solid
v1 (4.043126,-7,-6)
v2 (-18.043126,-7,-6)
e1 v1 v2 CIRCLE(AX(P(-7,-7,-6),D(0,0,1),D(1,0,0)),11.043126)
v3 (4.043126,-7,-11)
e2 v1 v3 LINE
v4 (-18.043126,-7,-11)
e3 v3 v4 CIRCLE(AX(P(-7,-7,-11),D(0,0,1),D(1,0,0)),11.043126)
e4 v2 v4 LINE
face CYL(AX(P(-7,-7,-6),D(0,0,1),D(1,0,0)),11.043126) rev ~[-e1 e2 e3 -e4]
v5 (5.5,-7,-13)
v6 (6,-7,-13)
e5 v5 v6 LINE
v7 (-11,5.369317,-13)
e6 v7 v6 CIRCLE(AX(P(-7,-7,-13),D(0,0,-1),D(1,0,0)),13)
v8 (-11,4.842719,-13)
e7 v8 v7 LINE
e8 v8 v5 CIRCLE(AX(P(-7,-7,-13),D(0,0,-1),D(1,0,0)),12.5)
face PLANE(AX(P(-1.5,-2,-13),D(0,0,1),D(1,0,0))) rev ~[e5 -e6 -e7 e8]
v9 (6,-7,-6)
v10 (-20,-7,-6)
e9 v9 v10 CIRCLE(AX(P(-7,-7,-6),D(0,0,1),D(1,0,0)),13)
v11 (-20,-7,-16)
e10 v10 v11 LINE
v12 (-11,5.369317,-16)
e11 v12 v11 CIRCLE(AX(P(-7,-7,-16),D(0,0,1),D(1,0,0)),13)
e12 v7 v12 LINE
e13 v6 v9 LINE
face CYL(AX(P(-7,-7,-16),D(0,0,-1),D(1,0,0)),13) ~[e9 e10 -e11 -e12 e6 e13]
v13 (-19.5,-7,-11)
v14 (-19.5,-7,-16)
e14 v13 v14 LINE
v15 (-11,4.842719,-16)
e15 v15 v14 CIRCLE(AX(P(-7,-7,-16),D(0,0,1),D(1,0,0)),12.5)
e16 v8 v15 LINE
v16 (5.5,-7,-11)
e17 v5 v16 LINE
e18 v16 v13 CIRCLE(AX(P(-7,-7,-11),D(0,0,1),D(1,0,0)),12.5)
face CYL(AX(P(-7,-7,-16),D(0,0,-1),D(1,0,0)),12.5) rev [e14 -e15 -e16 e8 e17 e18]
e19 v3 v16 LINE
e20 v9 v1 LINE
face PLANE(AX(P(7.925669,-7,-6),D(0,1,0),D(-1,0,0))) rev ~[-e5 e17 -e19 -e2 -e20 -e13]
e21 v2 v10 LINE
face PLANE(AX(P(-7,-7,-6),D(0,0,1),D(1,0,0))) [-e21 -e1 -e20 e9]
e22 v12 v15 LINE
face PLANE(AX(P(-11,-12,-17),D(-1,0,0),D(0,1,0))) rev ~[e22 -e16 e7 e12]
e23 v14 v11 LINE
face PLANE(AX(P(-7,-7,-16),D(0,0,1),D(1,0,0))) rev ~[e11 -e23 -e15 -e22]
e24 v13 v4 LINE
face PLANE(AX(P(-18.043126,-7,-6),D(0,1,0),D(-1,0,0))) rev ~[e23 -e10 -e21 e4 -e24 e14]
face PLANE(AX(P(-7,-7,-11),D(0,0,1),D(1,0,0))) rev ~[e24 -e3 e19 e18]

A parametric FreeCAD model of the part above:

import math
import FreeCAD as App
import Part
import Sketcher
from FreeCAD import Vector
Q = App.Units.Quantity


def add_polygon(sketch, points):
    """Adds a closed chain of lines whose ends are joined by coincident constraints."""
    first, n = sketch.GeometryCount, len(points)
    for a, b in zip(points, points[1:] + points[:1]):
        sketch.addGeometry(Part.LineSegment(App.Vector(*a, 0), App.Vector(*b, 0)), False)
    for i in range(n):
        sketch.addConstraint(Sketcher.Constraint("Coincident", first + i, 2, first + (i + 1) % n, 1))

doc = App.newDocument("Part")
body = doc.addObject("PartDesign::Body", "Body")

# Sketch on XY plane
sketch1 = doc.addObject("Sketcher::SketchObject", "Sketch")
body.addObject(sketch1)
sketch1.AttachmentSupport = (doc.XY_Plane, [""])
sketch1.MapMode = "FlatFace"
sketch1.AttachmentOffset = App.Placement(Vector(0, 0, -17), App.Rotation())
add_polygon(sketch1, [(-11, 8), (-11, -12), (8, -12), (8, 8)])  # lines 0-3
sketch1.addConstraint(Sketcher.Constraint("Vertical", 0))
sketch1.addConstraint(Sketcher.Constraint("Horizontal", 1))
sketch1.addConstraint(Sketcher.Constraint("Vertical", 2))
sketch1.addConstraint(Sketcher.Constraint("Horizontal", 3))
sketch1.addConstraint(Sketcher.Constraint("DistanceX", 1, 1, 1, 2, Q("19 mm")))
sketch1.addConstraint(Sketcher.Constraint("DistanceY", 0, 2, 0, 1, Q("20 mm")))
sketch1.addConstraint(Sketcher.Constraint("DistanceX", 0, 2, -1, 1, Q("11 mm")))
sketch1.addConstraint(Sketcher.Constraint("DistanceY", 0, 2, -1, 1, Q("12 mm")))
pad1 = doc.addObject("PartDesign::Pad", "Pad")
body.addObject(pad1)
pad1.Profile = sketch1
pad1.Length = 4
body2 = doc.addObject("PartDesign::Body", "Body001")

# Sketch on XY plane
sketch2 = doc.addObject("Sketcher::SketchObject", "Sketch001")
body2.addObject(sketch2)
sketch2.AttachmentSupport = (doc.getObject("XY_Plane001"), [""])
sketch2.MapMode = "FlatFace"
sketch2.AttachmentOffset = App.Placement(Vector(0, 0, -16), App.Rotation())
sketch2.addGeometry(Part.Circle(Vector(-7, -7, 0), Vector(0, 0, 1), 12), False)
sketch2.addConstraint(Sketcher.Constraint("Diameter", 0, Q("25 mm")))
sketch2.addConstraint(Sketcher.Constraint("DistanceX", 0, 3, -1, 1, Q("7 mm")))
sketch2.addConstraint(Sketcher.Constraint("DistanceY", 0, 3, -1, 1, Q("7 mm")))
pad2 = doc.addObject("PartDesign::Pad", "Pad001")
body2.addObject(pad2)
pad2.Profile = sketch2
pad2.Length = 5
body3 = doc.addObject("PartDesign::Body", "Body002")

# Sketch on XY plane
sketch3 = doc.addObject("Sketcher::SketchObject", "Sketch002")
body3.addObject(sketch3)
sketch3.AttachmentSupport = (doc.getObject("XY_Plane002"), [""])
sketch3.MapMode = "FlatFace"
sketch3.AttachmentOffset = App.Placement(Vector(0, 0, -16), App.Rotation())
sketch3.addGeometry(Part.Circle(Vector(-7, -7, 0), Vector(0, 0, 1), 13), False)
sketch3.addConstraint(Sketcher.Constraint("Diameter", 0, Q("26 mm")))
sketch3.addConstraint(Sketcher.Constraint("DistanceX", 0, 3, -1, 1, Q("7 mm")))
sketch3.addConstraint(Sketcher.Constraint("DistanceY", 0, 3, -1, 1, Q("7 mm")))
pad3 = doc.addObject("PartDesign::Pad", "Pad002")
body3.addObject(pad3)
pad3.Profile = sketch3
pad3.Length = 10

# Sketch on XY plane
sketch4 = doc.addObject("Sketcher::SketchObject", "Sketch003")
body3.addObject(sketch4)
sketch4.AttachmentSupport = (doc.getObject("XY_Plane002"), [""])
sketch4.MapMode = "FlatFace"
sketch4.AttachmentOffset = App.Placement(Vector(0, 0, -6), App.Rotation())
sketch4.addGeometry(Part.ArcOfCircle(Part.Circle(Vector(-7, -7, 0), Vector(0, 0, 1), 11), math.radians(0), math.radians(180)), False)
sketch4.addGeometry(Part.LineSegment(Vector(-18, -7, 0), Vector(-22.4, -7, 0)), False)
sketch4.addGeometry(Part.LineSegment(Vector(-22.4, -7, 0), Vector(-22.4, -21.2, 0)), False)
sketch4.addGeometry(Part.LineSegment(Vector(-22.4, -21.2, 0), Vector(7.9, -21.2, 0)), False)
sketch4.addGeometry(Part.LineSegment(Vector(7.9, -21.2, 0), Vector(7.9, -7, 0)), False)
sketch4.addGeometry(Part.LineSegment(Vector(7.9, -7, 0), Vector(4, -7, 0)), False)
sketch4.addConstraint(Sketcher.Constraint("Coincident", 0, 2, 1, 1))
sketch4.addConstraint(Sketcher.Constraint("Coincident", 1, 2, 2, 1))
sketch4.addConstraint(Sketcher.Constraint("Coincident", 2, 2, 3, 1))
sketch4.addConstraint(Sketcher.Constraint("Coincident", 3, 2, 4, 1))
sketch4.addConstraint(Sketcher.Constraint("Coincident", 4, 2, 5, 1))
sketch4.addConstraint(Sketcher.Constraint("Coincident", 5, 2, 0, 1))
sketch4.addConstraint(Sketcher.Constraint("Horizontal", 1))
sketch4.addConstraint(Sketcher.Constraint("Vertical", 2))
sketch4.addConstraint(Sketcher.Constraint("Horizontal", 3))
sketch4.addConstraint(Sketcher.Constraint("Vertical", 4))
sketch4.addConstraint(Sketcher.Constraint("Horizontal", 5))
sketch4.addConstraint(Sketcher.Constraint("Horizontal", 1, 2, 4, 2))
sketch4.addConstraint(Sketcher.Constraint("DistanceX", 0, 3, -1, 1, Q("7 mm")))
sketch4.addConstraint(Sketcher.Constraint("DistanceY", 0, 3, -1, 1, Q("7 mm")))
sketch4.addConstraint(Sketcher.Constraint("DistanceY", 0, 2, -1, 1, Q("7 mm")))
sketch4.addConstraint(Sketcher.Constraint("Radius", 0, Q("11.043126 mm")))
sketch4.addConstraint(Sketcher.Constraint("DistanceX", 3, 1, 3, 2, Q("30.27959 mm")))
sketch4.addConstraint(Sketcher.Constraint("DistanceX", 1, 2, 1, 1, Q("4.310795 mm")))
sketch4.addConstraint(Sketcher.Constraint("DistanceY", 2, 2, 2, 1, Q("14.225527 mm")))
pocket1 = doc.addObject("PartDesign::Pocket", "Pocket")
body3.addObject(pocket1)
pocket1.Profile = sketch4
pocket1.Length = 10
doc.recompute()

boolean = doc.addObject("PartDesign::Boolean", "Boolean")
body3.addObject(boolean)
boolean.Type = "Cut"
boolean.addObjects([body2])
doc.recompute()

boolean2 = doc.addObject("PartDesign::Boolean", "Boolean001")
body3.addObject(boolean2)
boolean2.Type = "Cut"
boolean2.addObjects([body])

doc.recompute()
